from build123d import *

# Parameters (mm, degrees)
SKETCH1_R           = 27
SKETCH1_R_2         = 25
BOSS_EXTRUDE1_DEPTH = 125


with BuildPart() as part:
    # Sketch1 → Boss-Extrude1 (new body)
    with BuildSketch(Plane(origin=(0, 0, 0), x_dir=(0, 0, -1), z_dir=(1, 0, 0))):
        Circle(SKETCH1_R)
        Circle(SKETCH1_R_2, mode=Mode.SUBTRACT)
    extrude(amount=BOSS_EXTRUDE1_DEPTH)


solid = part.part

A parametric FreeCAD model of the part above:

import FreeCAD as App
import Part
import Sketcher
Q = App.Units.Quantity

doc = App.newDocument("Part")
params = doc.addObject("Spreadsheet::Sheet", "Params")
for row, (alias, value) in enumerate([
    ("sketch1_diameter", "54 mm"),
    ("sketch1_diameter2", "50 mm"),
    ("pad1_length", "125 mm"),
], start=1):
    params.set(f"A{row}", alias)
    params.set(f"B{row}", "=" + value)
    params.setAlias(f"B{row}", alias)

body = doc.addObject("PartDesign::Body", "Body")

# Sketch on YZ plane
sketch1 = doc.addObject("Sketcher::SketchObject", "Sketch")
body.addObject(sketch1)
sketch1.AttachmentSupport = (doc.YZ_Plane, [""])
sketch1.MapMode = "FlatFace"
sketch1.addGeometry([
    Part.Circle(App.Vector(0, 0, 0), App.Vector(0, 0, 1), 27),
    Part.Circle(App.Vector(0, 0, 0), App.Vector(0, 0, 1), 25),
], False)
sketch1.addConstraint([
    Sketcher.Constraint("Coincident", 0, 3, -1, 1),
    Sketcher.Constraint("Coincident", 1, 3, -1, 1),
    Sketcher.Constraint("Diameter", 0, Q("54 mm")),
    Sketcher.Constraint("Diameter", 1, Q("50 mm")),
])
sketch1.setExpression("Constraints[2]", "Params.sketch1_diameter")
sketch1.setExpression("Constraints[3]", "Params.sketch1_diameter2")
pad1 = doc.addObject("PartDesign::Pad", "Pad")
body.addObject(pad1)
pad1.Profile = sketch1
pad1.setExpression("Length", "Params.pad1_length")

doc.recompute()
